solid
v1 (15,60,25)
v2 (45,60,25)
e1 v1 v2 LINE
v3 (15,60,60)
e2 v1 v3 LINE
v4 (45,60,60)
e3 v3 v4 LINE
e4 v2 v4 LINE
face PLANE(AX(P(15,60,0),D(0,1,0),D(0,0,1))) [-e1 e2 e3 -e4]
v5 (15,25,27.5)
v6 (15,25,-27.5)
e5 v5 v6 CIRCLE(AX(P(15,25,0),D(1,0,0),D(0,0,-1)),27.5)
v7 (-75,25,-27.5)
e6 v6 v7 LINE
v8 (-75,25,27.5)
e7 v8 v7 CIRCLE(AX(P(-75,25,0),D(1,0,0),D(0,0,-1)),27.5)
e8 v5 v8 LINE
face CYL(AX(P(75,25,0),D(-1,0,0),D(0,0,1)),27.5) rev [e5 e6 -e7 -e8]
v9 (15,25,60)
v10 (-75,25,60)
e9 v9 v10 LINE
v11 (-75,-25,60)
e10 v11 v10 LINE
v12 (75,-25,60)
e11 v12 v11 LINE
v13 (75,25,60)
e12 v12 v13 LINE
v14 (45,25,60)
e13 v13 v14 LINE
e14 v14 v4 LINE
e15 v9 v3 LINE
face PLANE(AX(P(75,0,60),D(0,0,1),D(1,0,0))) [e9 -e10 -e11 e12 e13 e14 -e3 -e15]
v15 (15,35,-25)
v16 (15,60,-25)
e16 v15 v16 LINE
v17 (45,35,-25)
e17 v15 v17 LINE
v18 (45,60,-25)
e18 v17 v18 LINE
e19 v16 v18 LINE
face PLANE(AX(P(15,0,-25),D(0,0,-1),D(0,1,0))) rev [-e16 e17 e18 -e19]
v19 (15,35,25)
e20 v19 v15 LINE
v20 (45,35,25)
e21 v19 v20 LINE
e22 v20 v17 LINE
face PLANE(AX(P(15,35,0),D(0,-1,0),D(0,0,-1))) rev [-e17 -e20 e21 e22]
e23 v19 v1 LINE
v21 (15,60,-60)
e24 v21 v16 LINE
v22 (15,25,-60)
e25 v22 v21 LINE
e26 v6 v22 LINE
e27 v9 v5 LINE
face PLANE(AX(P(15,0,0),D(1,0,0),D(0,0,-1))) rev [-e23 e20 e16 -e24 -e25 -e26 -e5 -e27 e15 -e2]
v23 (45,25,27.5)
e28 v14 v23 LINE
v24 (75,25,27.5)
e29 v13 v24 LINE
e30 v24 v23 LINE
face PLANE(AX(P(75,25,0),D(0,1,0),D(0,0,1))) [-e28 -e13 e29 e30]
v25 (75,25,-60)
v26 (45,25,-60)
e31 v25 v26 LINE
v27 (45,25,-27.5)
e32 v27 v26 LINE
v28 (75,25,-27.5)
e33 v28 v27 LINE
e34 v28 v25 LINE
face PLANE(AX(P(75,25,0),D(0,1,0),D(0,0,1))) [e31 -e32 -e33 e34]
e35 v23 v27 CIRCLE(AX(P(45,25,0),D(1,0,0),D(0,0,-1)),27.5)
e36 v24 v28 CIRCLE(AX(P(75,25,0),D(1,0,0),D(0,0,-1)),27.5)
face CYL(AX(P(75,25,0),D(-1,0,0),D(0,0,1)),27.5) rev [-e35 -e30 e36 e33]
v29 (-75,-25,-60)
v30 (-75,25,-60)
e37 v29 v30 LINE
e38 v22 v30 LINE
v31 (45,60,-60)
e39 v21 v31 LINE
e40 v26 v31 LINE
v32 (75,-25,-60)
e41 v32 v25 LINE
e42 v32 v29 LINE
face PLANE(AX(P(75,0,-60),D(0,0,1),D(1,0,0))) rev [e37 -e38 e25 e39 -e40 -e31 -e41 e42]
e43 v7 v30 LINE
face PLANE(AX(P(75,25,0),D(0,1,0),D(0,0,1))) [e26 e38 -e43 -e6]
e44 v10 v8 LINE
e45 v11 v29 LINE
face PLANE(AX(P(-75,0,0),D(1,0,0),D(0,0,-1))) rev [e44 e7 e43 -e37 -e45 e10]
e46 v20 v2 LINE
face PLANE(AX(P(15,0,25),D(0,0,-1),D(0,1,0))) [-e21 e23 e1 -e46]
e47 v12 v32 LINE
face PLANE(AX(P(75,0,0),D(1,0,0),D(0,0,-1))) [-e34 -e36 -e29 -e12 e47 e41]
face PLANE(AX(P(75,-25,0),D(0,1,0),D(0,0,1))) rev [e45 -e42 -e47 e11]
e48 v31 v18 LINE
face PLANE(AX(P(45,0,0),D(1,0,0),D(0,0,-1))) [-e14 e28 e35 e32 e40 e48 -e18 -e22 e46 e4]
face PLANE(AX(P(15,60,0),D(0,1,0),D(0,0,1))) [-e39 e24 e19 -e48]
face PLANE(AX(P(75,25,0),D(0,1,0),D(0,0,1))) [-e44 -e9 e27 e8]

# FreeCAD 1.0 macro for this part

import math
import FreeCAD as App
import Part
import Sketcher

V = App.Vector

doc = App.newDocument("Part")
body = doc.addObject("PartDesign::Body", "Body")

# Sketch on YZ plane
sketch1 = body.newObject("Sketcher::SketchObject", "Sketch")
sketch1.AttachmentSupport = (doc.getObject("YZ_Plane"), [""])
sketch1.MapMode = "FlatFace"
sketch1.addGeometry([
    Part.LineSegment(V(25, 60, 0), V(-25, 60, 0)),  # 0
    Part.LineSegment(V(-25, 60, 0), V(-25, -60, 0)),  # 1
    Part.LineSegment(V(-25, -60, 0), V(25, -60, 0)),  # 2
    Part.LineSegment(V(25, -60, 0), V(25, -27.5, 0)),  # 3
    Part.ArcOfCircle(Part.Circle(V(25, 0, 0), V(0, 0, 1), 27.5), math.radians(90), math.radians(270)),  # 4
    Part.LineSegment(V(25, 27.5, 0), V(25, 60, 0)),  # 5
], False)
sketch1.addConstraint([
    Sketcher.Constraint("Coincident", 0, 2, 1, 1),
    Sketcher.Constraint("Coincident", 1, 2, 2, 1),
    Sketcher.Constraint("Coincident", 2, 2, 3, 1),
    Sketcher.Constraint("Coincident", 3, 2, 4, 2),
    Sketcher.Constraint("Coincident", 4, 1, 5, 1),
    Sketcher.Constraint("Coincident", 5, 2, 0, 1),
    Sketcher.Constraint("Horizontal", 0),
    Sketcher.Constraint("Vertical", 1),
    Sketcher.Constraint("Horizontal", 2),
    Sketcher.Constraint("Vertical", 3),
    Sketcher.Constraint("Vertical", 5),
    Sketcher.Constraint("Symmetric", 0, 2, 2, 2, -1, 1),
    Sketcher.Constraint("Symmetric", 3, 2, 4, 1, -1),
    Sketcher.Constraint("Vertical", 4, 3, 2, 2),
    Sketcher.Constraint("Radius", 4, 27.5),
    Sketcher.Constraint("DistanceX", 0, 2, 0, 1, 50.0),
    Sketcher.Constraint("DistanceY", 1, 2, 1, 1, 120.0),
])
pad1 = body.newObject("PartDesign::Pad", "Pad")
pad1.Profile = sketch1
pad1.Length = 150
pad1.Midplane = True

# Sketch on YZ plane
sketch2 = body.newObject("Sketcher::SketchObject", "Sketch001")
sketch2.AttachmentSupport = (doc.getObject("YZ_Plane"), [""])
sketch2.MapMode = "FlatFace"
sketch2.AttachmentOffset = App.Placement(V(0, 0, 45), App.Rotation())
sketch2.addGeometry([
    Part.LineSegment(V(-25, 60, 0), V(-25, -60, 0)),  # 0
    Part.LineSegment(V(-25, -60, 0), V(60, -60, 0)),  # 1
    Part.LineSegment(V(60, -60, 0), V(60, -25, 0)),  # 2
    Part.LineSegment(V(60, -25, 0), V(35, -25, 0)),  # 3
    Part.LineSegment(V(35, -25, 0), V(35, 25, 0)),  # 4
    Part.LineSegment(V(35, 25, 0), V(60, 25, 0)),  # 5
    Part.LineSegment(V(60, 25, 0), V(60, 60, 0)),  # 6
    Part.LineSegment(V(60, 60, 0), V(-25, 60, 0)),  # 7
], False)
sketch2.addConstraint([
    Sketcher.Constraint("Coincident", 0, 2, 1, 1),
    Sketcher.Constraint("Coincident", 1, 2, 2, 1),
    Sketcher.Constraint("Coincident", 2, 2, 3, 1),
    Sketcher.Constraint("Coincident", 3, 2, 4, 1),
    Sketcher.Constraint("Coincident", 4, 2, 5, 1),
    Sketcher.Constraint("Coincident", 5, 2, 6, 1),
    Sketcher.Constraint("Coincident", 6, 2, 7, 1),
    Sketcher.Constraint("Coincident", 7, 2, 0, 1),
    Sketcher.Constraint("Vertical", 0),
    Sketcher.Constraint("Horizontal", 1),
    Sketcher.Constraint("Vertical", 2),
    Sketcher.Constraint("Horizontal", 3),
    Sketcher.Constraint("Vertical", 4),
    Sketcher.Constraint("Horizontal", 5),
    Sketcher.Constraint("Vertical", 6),
    Sketcher.Constraint("Horizontal", 7),
    Sketcher.Constraint("Symmetric", 2, 2, 5, 2, -1),
    Sketcher.Constraint("Equal", 2, 6),
    Sketcher.Constraint("DistanceX", 1, 1, 1, 2, 85.0),
    Sketcher.Constraint("DistanceX", 3, 2, 3, 1, 25.0),
    Sketcher.Constraint("DistanceY", 0, 2, 0, 1, 120.0),
    Sketcher.Constraint("DistanceY", 2, 1, 2, 2, 35.0),
    Sketcher.Constraint("DistanceX", 0, 2, -1, 1, 25.0),
])
pad2 = body.newObject("PartDesign::Pad", "Pad001")
pad2.Profile = sketch2
pad2.Length = 30
pad2.Reversed = True

doc.recompute()
